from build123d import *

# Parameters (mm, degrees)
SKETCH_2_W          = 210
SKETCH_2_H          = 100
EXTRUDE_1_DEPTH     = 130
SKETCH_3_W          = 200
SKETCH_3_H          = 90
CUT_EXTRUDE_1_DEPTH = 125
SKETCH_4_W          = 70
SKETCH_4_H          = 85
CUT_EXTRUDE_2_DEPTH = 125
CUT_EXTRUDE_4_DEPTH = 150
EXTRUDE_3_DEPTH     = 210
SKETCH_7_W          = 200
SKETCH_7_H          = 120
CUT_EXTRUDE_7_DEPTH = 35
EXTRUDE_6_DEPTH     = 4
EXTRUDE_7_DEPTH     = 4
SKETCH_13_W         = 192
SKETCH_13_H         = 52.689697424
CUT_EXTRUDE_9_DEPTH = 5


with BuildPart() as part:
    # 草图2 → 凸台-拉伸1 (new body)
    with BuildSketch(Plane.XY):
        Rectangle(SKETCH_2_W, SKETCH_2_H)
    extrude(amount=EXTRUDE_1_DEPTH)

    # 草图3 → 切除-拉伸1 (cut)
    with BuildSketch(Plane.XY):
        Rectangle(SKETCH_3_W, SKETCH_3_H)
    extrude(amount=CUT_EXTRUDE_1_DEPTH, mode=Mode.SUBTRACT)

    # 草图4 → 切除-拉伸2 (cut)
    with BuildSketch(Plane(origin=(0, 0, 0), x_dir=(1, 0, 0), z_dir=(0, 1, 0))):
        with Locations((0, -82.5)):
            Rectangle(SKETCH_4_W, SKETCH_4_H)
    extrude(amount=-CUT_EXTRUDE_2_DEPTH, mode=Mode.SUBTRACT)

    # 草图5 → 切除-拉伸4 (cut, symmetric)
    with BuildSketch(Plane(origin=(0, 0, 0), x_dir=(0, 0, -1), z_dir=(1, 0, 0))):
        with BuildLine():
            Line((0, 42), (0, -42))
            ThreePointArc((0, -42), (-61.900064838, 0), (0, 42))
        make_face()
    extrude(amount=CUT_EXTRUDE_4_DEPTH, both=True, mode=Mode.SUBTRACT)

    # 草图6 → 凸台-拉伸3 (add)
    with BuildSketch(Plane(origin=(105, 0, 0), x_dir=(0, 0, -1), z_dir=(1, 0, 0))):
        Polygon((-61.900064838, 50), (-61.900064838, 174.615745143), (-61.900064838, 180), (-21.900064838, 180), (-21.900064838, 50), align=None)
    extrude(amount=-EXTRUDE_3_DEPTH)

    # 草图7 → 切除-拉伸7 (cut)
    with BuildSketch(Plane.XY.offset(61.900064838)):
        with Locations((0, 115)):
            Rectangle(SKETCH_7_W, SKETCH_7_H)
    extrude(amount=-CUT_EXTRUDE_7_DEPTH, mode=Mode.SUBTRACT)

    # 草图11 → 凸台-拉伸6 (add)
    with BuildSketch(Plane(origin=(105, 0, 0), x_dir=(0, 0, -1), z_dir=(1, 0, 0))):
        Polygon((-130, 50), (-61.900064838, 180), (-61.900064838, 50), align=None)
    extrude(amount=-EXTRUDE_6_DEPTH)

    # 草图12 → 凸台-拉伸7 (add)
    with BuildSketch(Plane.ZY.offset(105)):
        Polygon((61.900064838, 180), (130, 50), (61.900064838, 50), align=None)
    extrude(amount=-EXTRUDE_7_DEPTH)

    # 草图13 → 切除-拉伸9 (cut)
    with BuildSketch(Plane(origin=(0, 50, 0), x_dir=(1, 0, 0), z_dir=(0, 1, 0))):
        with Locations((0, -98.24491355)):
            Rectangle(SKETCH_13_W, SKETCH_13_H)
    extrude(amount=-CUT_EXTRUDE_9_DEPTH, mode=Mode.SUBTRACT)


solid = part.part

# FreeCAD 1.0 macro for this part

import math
import FreeCAD as App
import Part
import Sketcher

V = App.Vector
Q = App.Units.Quantity

doc = App.newDocument("Part")
body = doc.addObject("PartDesign::Body", "Body")

# Sketch on XY plane
sketch1 = doc.addObject("Sketcher::SketchObject", "Sketch")
body.addObject(sketch1)
sketch1.AttachmentSupport = (doc.XY_Plane, [""])
sketch1.MapMode = "FlatFace"
sketch1.addGeometry([
    Part.LineSegment(V(-105, 50, 0), V(-105, -50, 0)),
    Part.LineSegment(V(-105, -50, 0), V(105, -50, 0)),
    Part.LineSegment(V(105, -50, 0), V(105, 50, 0)),
    Part.LineSegment(V(105, 50, 0), V(-105, 50, 0)),
], False)
sketch1.addConstraint([
    Sketcher.Constraint("Coincident", 0, 2, 1, 1),
    Sketcher.Constraint("Coincident", 1, 2, 2, 1),
    Sketcher.Constraint("Coincident", 2, 2, 3, 1),
    Sketcher.Constraint("Coincident", 3, 2, 0, 1),
    Sketcher.Constraint("Vertical", 0),
    Sketcher.Constraint("Horizontal", 1),
    Sketcher.Constraint("Vertical", 2),
    Sketcher.Constraint("Horizontal", 3),
    Sketcher.Constraint("Symmetric", 0, 2, 2, 2, -1, 1),
    Sketcher.Constraint("DistanceX", 1, 1, 1, 2, Q("210 mm")),
    Sketcher.Constraint("DistanceY", 0, 2, 0, 1, Q("100 mm")),
])
pad1 = doc.addObject("PartDesign::Pad", "Pad")
body.addObject(pad1)
pad1.Profile = sketch1
pad1.Length = 130

# Sketch on XY plane
sketch2 = doc.addObject("Sketcher::SketchObject", "Sketch001")
body.addObject(sketch2)
sketch2.AttachmentSupport = (doc.XY_Plane, [""])
sketch2.MapMode = "FlatFace"
sketch2.addGeometry([
    Part.LineSegment(V(-100, 45, 0), V(-100, -45, 0)),
    Part.LineSegment(V(-100, -45, 0), V(100, -45, 0)),
    Part.LineSegment(V(100, -45, 0), V(100, 45, 0)),
    Part.LineSegment(V(100, 45, 0), V(-100, 45, 0)),
], False)
sketch2.addConstraint([
    Sketcher.Constraint("Coincident", 0, 2, 1, 1),
    Sketcher.Constraint("Coincident", 1, 2, 2, 1),
    Sketcher.Constraint("Coincident", 2, 2, 3, 1),
    Sketcher.Constraint("Coincident", 3, 2, 0, 1),
    Sketcher.Constraint("Vertical", 0),
    Sketcher.Constraint("Horizontal", 1),
    Sketcher.Constraint("Vertical", 2),
    Sketcher.Constraint("Horizontal", 3),
    Sketcher.Constraint("Symmetric", 0, 2, 2, 2, -1, 1),
    Sketcher.Constraint("DistanceX", 1, 1, 1, 2, Q("200 mm")),
    Sketcher.Constraint("DistanceY", 0, 2, 0, 1, Q("90 mm")),
])
pocket1 = doc.addObject("PartDesign::Pocket", "Pocket")
body.addObject(pocket1)
pocket1.Profile = sketch2
pocket1.Length = 125
pocket1.Reversed = True

# Sketch on XZ plane
sketch3 = doc.addObject("Sketcher::SketchObject", "Sketch002")
body.addObject(sketch3)
sketch3.AttachmentSupport = (doc.XZ_Plane, [""])
sketch3.MapMode = "FlatFace"
sketch3.addGeometry([
    Part.LineSegment(V(-35, 40, 0), V(-35, 125, 0)),
    Part.LineSegment(V(-35, 125, 0), V(35, 125, 0)),
    Part.LineSegment(V(35, 125, 0), V(35, 40, 0)),
    Part.LineSegment(V(35, 40, 0), V(-35, 40, 0)),
], False)
sketch3.addConstraint([
    Sketcher.Constraint("Coincident", 0, 2, 1, 1),
    Sketcher.Constraint("Coincident", 1, 2, 2, 1),
    Sketcher.Constraint("Coincident", 2, 2, 3, 1),
    Sketcher.Constraint("Coincident", 3, 2, 0, 1),
    Sketcher.Constraint("Vertical", 0),
    Sketcher.Constraint("Horizontal", 1),
    Sketcher.Constraint("Vertical", 2),
    Sketcher.Constraint("Horizontal", 3),
    Sketcher.Constraint("DistanceX", 1, 1, 1, 2, Q("70 mm")),
    Sketcher.Constraint("DistanceY", 0, 1, 0, 2, Q("85 mm")),
    Sketcher.Constraint("DistanceX", 0, 2, -1, 1, Q("35 mm")),
    Sketcher.Constraint("DistanceY", -1, 1, 0, 2, Q("125 mm")),
])
pocket2 = doc.addObject("PartDesign::Pocket", "Pocket001")
body.addObject(pocket2)
pocket2.Profile = sketch3
pocket2.Length = 125
pocket2.Reversed = True

# Sketch on YZ plane
sketch4 = doc.addObject("Sketcher::SketchObject", "Sketch003")
body.addObject(sketch4)
sketch4.AttachmentSupport = (doc.YZ_Plane, [""])
sketch4.MapMode = "FlatFace"
sketch4.addGeometry([
    Part.LineSegment(V(-42, 0, 0), V(42, 0, 0)),
    Part.ArcOfCircle(Part.Circle(V(0, 17, 0), V(0, 0, 1), 45), math.radians(-22), math.radians(202)),
], False)
sketch4.addConstraint([
    Sketcher.Constraint("Coincident", 0, 1, 1, 2),
    Sketcher.Constraint("Coincident", 1, 1, 0, 2),
    Sketcher.Constraint("Horizontal", 0),
    Sketcher.Constraint("Symmetric", 0, 1, 1, 1, -1, 1),
    Sketcher.Constraint("DistanceX", 0, 1, 0, 2, Q("84 mm")),
    Sketcher.Constraint("Radius", 1, Q("45.198806 mm")),
])
pocket3 = doc.addObject("PartDesign::Pocket", "Pocket002")
body.addObject(pocket3)
pocket3.Profile = sketch4
pocket3.Length = 300
pocket3.Midplane = True

# Sketch on YZ plane
sketch5 = doc.addObject("Sketcher::SketchObject", "Sketch004")
body.addObject(sketch5)
sketch5.AttachmentSupport = (doc.YZ_Plane, [""])
sketch5.MapMode = "FlatFace"
sketch5.AttachmentOffset = App.Placement(V(0, 0, 105), App.Rotation())
sketch5.addGeometry([
    Part.LineSegment(V(180, 62, 0), V(50, 62, 0)),
    Part.LineSegment(V(50, 62, 0), V(50, 22, 0)),
    Part.LineSegment(V(50, 22, 0), V(180, 22, 0)),
    Part.LineSegment(V(180, 22, 0), V(180, 62, 0)),
], False)
sketch5.addConstraint([
    Sketcher.Constraint("Coincident", 0, 2, 1, 1),
    Sketcher.Constraint("Coincident", 1, 2, 2, 1),
    Sketcher.Constraint("Coincident", 2, 2, 3, 1),
    Sketcher.Constraint("Coincident", 3, 2, 0, 1),
    Sketcher.Constraint("Horizontal", 0),
    Sketcher.Constraint("Vertical", 1),
    Sketcher.Constraint("Horizontal", 2),
    Sketcher.Constraint("Vertical", 3),
    Sketcher.Constraint("DistanceX", 0, 2, 0, 1, Q("130 mm")),
    Sketcher.Constraint("DistanceY", 1, 2, 1, 1, Q("40 mm")),
    Sketcher.Constraint("DistanceX", -1, 1, 0, 2, Q("50 mm")),
    Sketcher.Constraint("DistanceY", -1, 1, 0, 2, Q("61.900065 mm")),
])
pad2 = doc.addObject("PartDesign::Pad", "Pad001")
body.addObject(pad2)
pad2.Profile = sketch5
pad2.Length = 210
pad2.Reversed = True

# Sketch on XY plane
sketch6 = doc.addObject("Sketcher::SketchObject", "Sketch005")
body.addObject(sketch6)
sketch6.AttachmentSupport = (doc.XY_Plane, [""])
sketch6.MapMode = "FlatFace"
sketch6.AttachmentOffset = App.Placement(V(0, 0, 61.900065), App.Rotation())
sketch6.addGeometry([
    Part.LineSegment(V(-100, 175, 0), V(-100, 55, 0)),
    Part.LineSegment(V(-100, 55, 0), V(100, 55, 0)),
    Part.LineSegment(V(100, 55, 0), V(100, 175, 0)),
    Part.LineSegment(V(100, 175, 0), V(-100, 175, 0)),
], False)
sketch6.addConstraint([
    Sketcher.Constraint("Coincident", 0, 2, 1, 1),
    Sketcher.Constraint("Coincident", 1, 2, 2, 1),
    Sketcher.Constraint("Coincident", 2, 2, 3, 1),
    Sketcher.Constraint("Coincident", 3, 2, 0, 1),
    Sketcher.Constraint("Vertical", 0),
    Sketcher.Constraint("Horizontal", 1),
    Sketcher.Constraint("Vertical", 2),
    Sketcher.Constraint("Horizontal", 3),
    Sketcher.Constraint("DistanceX", 1, 1, 1, 2, Q("200 mm")),
    Sketcher.Constraint("DistanceY", 0, 2, 0, 1, Q("120 mm")),
    Sketcher.Constraint("DistanceX", 0, 2, -1, 1, Q("100 mm")),
    Sketcher.Constraint("DistanceY", -1, 1, 0, 2, Q("55 mm")),
])
pocket4 = doc.addObject("PartDesign::Pocket", "Pocket003")
body.addObject(pocket4)
pocket4.Profile = sketch6
pocket4.Length = 35

# Sketch on YZ plane
sketch7 = doc.addObject("Sketcher::SketchObject", "Sketch006")
body.addObject(sketch7)
sketch7.AttachmentSupport = (doc.YZ_Plane, [""])
sketch7.MapMode = "FlatFace"
sketch7.AttachmentOffset = App.Placement(V(0, 0, 105), App.Rotation())
sketch7.addGeometry([
    Part.LineSegment(V(180, 62, 0), V(50, 130, 0)),
    Part.LineSegment(V(50, 130, 0), V(50, 62, 0)),
    Part.LineSegment(V(50, 62, 0), V(180, 62, 0)),
], False)
sketch7.addConstraint([
    Sketcher.Constraint("Coincident", 0, 2, 1, 1),
    Sketcher.Constraint("Coincident", 1, 2, 2, 1),
    Sketcher.Constraint("Coincident", 2, 2, 0, 1),
    Sketcher.Constraint("Vertical", 1),
    Sketcher.Constraint("Horizontal", 2),
    Sketcher.Constraint("DistanceX", 2, 1, 2, 2, Q("130 mm")),
    Sketcher.Constraint("DistanceX", -1, 1, 0, 2, Q("50 mm")),
    Sketcher.Constraint("DistanceY", -1, 1, 0, 2, Q("130 mm")),
    Sketcher.Constraint("DistanceY", 1, 2, 1, 1, Q("68.099935 mm")),
])
pad3 = doc.addObject("PartDesign::Pad", "Pad002")
body.addObject(pad3)
pad3.Profile = sketch7
pad3.Length = 4
pad3.Reversed = True

# Sketch on YZ plane
sketch8 = doc.addObject("Sketcher::SketchObject", "Sketch007")
body.addObject(sketch8)
sketch8.AttachmentSupport = (doc.YZ_Plane, [""])
sketch8.MapMode = "FlatFace"
sketch8.AttachmentOffset = App.Placement(V(0, 0, -105), App.Rotation())
sketch8.addGeometry([
    Part.LineSegment(V(50, 130, 0), V(180, 62, 0)),
    Part.LineSegment(V(180, 62, 0), V(50, 62, 0)),
    Part.LineSegment(V(50, 62, 0), V(50, 130, 0)),
], False)
sketch8.addConstraint([
    Sketcher.Constraint("Coincident", 0, 2, 1, 1),
    Sketcher.Constraint("Coincident", 1, 2, 2, 1),
    Sketcher.Constraint("Coincident", 2, 2, 0, 1),
    Sketcher.Constraint("Horizontal", 1),
    Sketcher.Constraint("Vertical", 2),
    Sketcher.Constraint("DistanceX", 1, 2, 1, 1, Q("130 mm")),
    Sketcher.Constraint("DistanceX", -1, 1, 0, 2, Q("180 mm")),
    Sketcher.Constraint("DistanceY", -1, 1, 2, 2, Q("130 mm")),
    Sketcher.Constraint("DistanceY", 2, 1, 2, 2, Q("68.099935 mm")),
])
pad4 = doc.addObject("PartDesign::Pad", "Pad003")
body.addObject(pad4)
pad4.Profile = sketch8
pad4.Length = 4

# Sketch on XZ plane
sketch9 = doc.addObject("Sketcher::SketchObject", "Sketch008")
body.addObject(sketch9)
sketch9.AttachmentSupport = (doc.XZ_Plane, [""])
sketch9.MapMode = "FlatFace"
sketch9.AttachmentOffset = App.Placement(V(0, 0, -50), App.Rotation())
sketch9.addGeometry([
    Part.LineSegment(V(-96, 72, 0), V(-96, 125, 0)),
    Part.LineSegment(V(-96, 125, 0), V(96, 125, 0)),
    Part.LineSegment(V(96, 125, 0), V(96, 72, 0)),
    Part.LineSegment(V(96, 72, 0), V(-96, 72, 0)),
], False)
sketch9.addConstraint([
    Sketcher.Constraint("Coincident", 0, 2, 1, 1),
    Sketcher.Constraint("Coincident", 1, 2, 2, 1),
    Sketcher.Constraint("Coincident", 2, 2, 3, 1),
    Sketcher.Constraint("Coincident", 3, 2, 0, 1),
    Sketcher.Constraint("Vertical", 0),
    Sketcher.Constraint("Horizontal", 1),
    Sketcher.Constraint("Vertical", 2),
    Sketcher.Constraint("Horizontal", 3),
    Sketcher.Constraint("DistanceX", 1, 1, 1, 2, Q("192 mm")),
    Sketcher.Constraint("DistanceX", 0, 2, -1, 1, Q("96 mm")),
    Sketcher.Constraint("DistanceY", 0, 1, 0, 2, Q("52.689697 mm")),
    Sketcher.Constraint("DistanceY", -1, 1, 0, 2, Q("124.589762 mm")),
])
pocket5 = doc.addObject("PartDesign::Pocket", "Pocket004")
body.addObject(pocket5)
pocket5.Profile = sketch9
pocket5.Length = 5
pocket5.Reversed = True

doc.recompute()
